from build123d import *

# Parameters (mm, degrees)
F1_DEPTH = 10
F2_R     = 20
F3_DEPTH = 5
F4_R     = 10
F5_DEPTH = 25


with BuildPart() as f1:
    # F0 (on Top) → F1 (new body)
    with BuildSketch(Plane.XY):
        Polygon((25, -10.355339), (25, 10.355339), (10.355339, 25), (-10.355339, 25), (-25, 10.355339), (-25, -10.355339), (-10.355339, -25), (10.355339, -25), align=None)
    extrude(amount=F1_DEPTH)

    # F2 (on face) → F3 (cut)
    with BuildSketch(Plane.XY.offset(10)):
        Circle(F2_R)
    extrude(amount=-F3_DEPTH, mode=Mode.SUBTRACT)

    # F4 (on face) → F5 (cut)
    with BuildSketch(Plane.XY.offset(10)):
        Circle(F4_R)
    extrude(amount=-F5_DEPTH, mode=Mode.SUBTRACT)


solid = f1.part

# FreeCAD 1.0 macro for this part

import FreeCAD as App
import Part
import Sketcher
Q = App.Units.Quantity


def add_polygon(sketch, points):
    """Adds a closed chain of lines whose ends are joined by coincident constraints."""
    first, n = sketch.GeometryCount, len(points)
    for a, b in zip(points, points[1:] + points[:1]):
        sketch.addGeometry(Part.LineSegment(App.Vector(*a, 0), App.Vector(*b, 0)), False)
    for i in range(n):
        sketch.addConstraint(Sketcher.Constraint("Coincident", first + i, 2, first + (i + 1) % n, 1))

doc = App.newDocument("Part")
body = doc.addObject("PartDesign::Body", "Body")

# Sketch on XY plane
sketch1 = body.newObject("Sketcher::SketchObject", "Sketch")
sketch1.AttachmentSupport = (doc.getObject("XY_Plane"), [""])
sketch1.MapMode = "FlatFace"
add_polygon(sketch1, [(25, -10), (25, 10), (10, 25), (-10, 25), (-25, 10), (-25, -10), (-10, -25), (10, -25)])  # lines 0-7
sketch1.addConstraint([
    Sketcher.Constraint("Vertical", 0),
    Sketcher.Constraint("Horizontal", 2),
    Sketcher.Constraint("Vertical", 4),
    Sketcher.Constraint("Horizontal", 6),
    Sketcher.Constraint("Symmetric", 0, 2, 4, 2, -1, 1),
    Sketcher.Constraint("Symmetric", 1, 2, 5, 2, -1, 1),
    Sketcher.Constraint("Perpendicular", 1, 3),
    Sketcher.Constraint("Perpendicular", 5, 7),
    Sketcher.Constraint("Horizontal", 0, 2, 3, 2),
    Sketcher.Constraint("Horizontal", 4, 2, 7, 2),
    Sketcher.Constraint("Vertical", 2, 2, 5, 2),
    Sketcher.Constraint("Equal", 6, 0),
    Sketcher.Constraint("DistanceX", -1, 1, 0, 2, Q("25 mm")),
    Sketcher.Constraint("DistanceX", 2, 2, 2, 1, Q("20.710678 mm")),
])
pad1 = body.newObject("PartDesign::Pad", "Pad")
pad1.Profile = sketch1
pad1.Length = 10

# Sketch on XY plane
sketch2 = body.newObject("Sketcher::SketchObject", "Sketch001")
sketch2.AttachmentSupport = (doc.getObject("XY_Plane"), [""])
sketch2.MapMode = "FlatFace"
sketch2.AttachmentOffset = App.Placement(App.Vector(0, 0, 10), App.Rotation())
sketch2.addGeometry(Part.Circle(App.Vector(0, 0, 0), App.Vector(0, 0, 1), 20), False)
sketch2.addConstraint([
    Sketcher.Constraint("Coincident", 0, 3, -1, 1),
    Sketcher.Constraint("Diameter", 0, Q("40 mm")),
])
pocket1 = body.newObject("PartDesign::Pocket", "Pocket")
pocket1.Profile = sketch2
pocket1.Length = 5

# Sketch on XY plane
sketch3 = body.newObject("Sketcher::SketchObject", "Sketch002")
sketch3.AttachmentSupport = (doc.getObject("XY_Plane"), [""])
sketch3.MapMode = "FlatFace"
sketch3.AttachmentOffset = App.Placement(App.Vector(0, 0, 10), App.Rotation())
sketch3.addGeometry(Part.Circle(App.Vector(0, 0, 0), App.Vector(0, 0, 1), 10), False)
sketch3.addConstraint([
    Sketcher.Constraint("Coincident", 0, 3, -1, 1),
    Sketcher.Constraint("Diameter", 0, Q("20 mm")),
])
pocket2 = body.newObject("PartDesign::Pocket", "Pocket001")
pocket2.Profile = sketch3
pocket2.Length = 25

doc.recompute()
